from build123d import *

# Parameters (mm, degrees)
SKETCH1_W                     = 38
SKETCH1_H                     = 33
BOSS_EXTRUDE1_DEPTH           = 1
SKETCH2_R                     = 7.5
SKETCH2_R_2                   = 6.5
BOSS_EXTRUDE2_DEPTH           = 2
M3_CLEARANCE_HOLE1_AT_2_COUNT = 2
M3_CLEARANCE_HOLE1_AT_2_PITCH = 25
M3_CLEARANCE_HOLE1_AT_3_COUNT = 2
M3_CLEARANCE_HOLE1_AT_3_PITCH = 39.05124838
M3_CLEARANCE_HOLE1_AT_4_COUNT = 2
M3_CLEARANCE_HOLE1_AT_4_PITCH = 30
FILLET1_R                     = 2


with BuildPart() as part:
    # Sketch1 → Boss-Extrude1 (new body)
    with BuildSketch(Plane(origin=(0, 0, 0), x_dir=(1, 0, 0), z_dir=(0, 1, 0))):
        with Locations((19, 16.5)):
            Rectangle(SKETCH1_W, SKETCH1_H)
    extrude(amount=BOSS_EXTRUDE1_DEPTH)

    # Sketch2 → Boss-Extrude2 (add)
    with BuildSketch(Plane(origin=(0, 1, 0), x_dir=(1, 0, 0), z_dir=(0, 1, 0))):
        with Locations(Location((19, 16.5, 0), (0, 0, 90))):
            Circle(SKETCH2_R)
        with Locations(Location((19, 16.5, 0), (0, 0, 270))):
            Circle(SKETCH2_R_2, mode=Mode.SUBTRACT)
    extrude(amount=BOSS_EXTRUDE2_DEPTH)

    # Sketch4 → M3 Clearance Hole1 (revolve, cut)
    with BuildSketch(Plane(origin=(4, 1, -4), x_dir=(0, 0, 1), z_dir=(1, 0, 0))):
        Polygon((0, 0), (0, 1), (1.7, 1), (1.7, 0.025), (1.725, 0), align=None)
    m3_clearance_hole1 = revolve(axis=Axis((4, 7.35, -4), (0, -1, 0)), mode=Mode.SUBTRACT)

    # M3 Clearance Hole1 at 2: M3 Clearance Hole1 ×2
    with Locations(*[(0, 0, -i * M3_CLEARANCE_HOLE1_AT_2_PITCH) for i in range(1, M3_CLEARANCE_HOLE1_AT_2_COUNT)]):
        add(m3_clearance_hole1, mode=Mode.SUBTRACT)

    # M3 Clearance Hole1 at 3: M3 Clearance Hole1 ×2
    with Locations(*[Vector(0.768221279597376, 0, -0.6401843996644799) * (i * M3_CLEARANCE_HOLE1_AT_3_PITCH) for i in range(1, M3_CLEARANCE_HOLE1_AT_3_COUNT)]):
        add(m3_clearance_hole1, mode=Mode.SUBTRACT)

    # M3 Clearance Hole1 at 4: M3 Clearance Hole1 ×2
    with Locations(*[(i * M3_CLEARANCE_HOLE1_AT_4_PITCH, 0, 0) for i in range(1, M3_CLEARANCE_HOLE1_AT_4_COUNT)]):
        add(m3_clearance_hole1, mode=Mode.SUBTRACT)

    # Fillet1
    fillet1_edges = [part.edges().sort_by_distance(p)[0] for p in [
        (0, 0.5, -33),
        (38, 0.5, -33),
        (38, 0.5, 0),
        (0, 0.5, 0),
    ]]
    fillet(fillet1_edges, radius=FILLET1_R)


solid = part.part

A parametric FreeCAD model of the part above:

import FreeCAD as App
import Part
import Sketcher
from FreeCAD import Vector
Q = App.Units.Quantity


def edges_at(feature, points):
    """Names of the edges that pass closest to the given points."""
    edges = feature.Shape.Edges
    near = lambda p: min(range(len(edges)), key=lambda i: edges[i].distToShape(Part.Vertex(*p))[0])
    return sorted({f"Edge{near(p) + 1}" for p in points})


def add_polygon(sketch, points):
    """Adds a closed chain of lines whose ends are joined by coincident constraints."""
    first, n = sketch.GeometryCount, len(points)
    for a, b in zip(points, points[1:] + points[:1]):
        sketch.addGeometry(Part.LineSegment(App.Vector(*a, 0), App.Vector(*b, 0)), False)
    for i in range(n):
        sketch.addConstraint(Sketcher.Constraint("Coincident", first + i, 2, first + (i + 1) % n, 1))

doc = App.newDocument("Part")
params = doc.addObject("Spreadsheet::Sheet", "Params")
for row, (alias, value) in enumerate([
    ("sketch1_width", "38 mm"),
    ("sketch1_height", "33 mm"),
    ("pad1_length", "1 mm"),
    ("sketch2_diameter", "15 mm"),
    ("sketch2_diameter2", "13 mm"),
    ("pad2_length", "2 mm"),
    ("sketch3_width", "1 mm"),
    ("sketch3_height", "1.7 mm"),
    ("groove_angle", "360 deg"),
    ("linearpattern_pitch", "25 mm"),
    ("linearpattern2_pitch", "39.051248 mm"),
    ("linearpattern3_pitch", "30 mm"),
    ("fillet_radius", "2 mm"),
], start=1):
    params.set(f"A{row}", alias)
    params.set(f"B{row}", "=" + value)
    params.setAlias(f"B{row}", alias)

body = doc.addObject("PartDesign::Body", "Body")

# Sketch on XZ plane
sketch1 = doc.addObject("Sketcher::SketchObject", "Sketch")
body.addObject(sketch1)
sketch1.AttachmentSupport = (doc.XZ_Plane, [""])
sketch1.MapMode = "FlatFace"
add_polygon(sketch1, [(0, -33), (0, 0), (38, 0), (38, -33)])  # lines 0-3
sketch1.addConstraint([
    Sketcher.Constraint("Vertical", 0),
    Sketcher.Constraint("Horizontal", 1),
    Sketcher.Constraint("Vertical", 2),
    Sketcher.Constraint("Horizontal", 3),
    Sketcher.Constraint("Coincident", 0, 2, -1, 1),
    Sketcher.Constraint("DistanceX", 1, 1, 1, 2, 38.0),
    Sketcher.Constraint("DistanceY", 0, 1, 0, 2, 33.0),
])
sketch1.setExpression("Constraints[9]", "Params.sketch1_width")
sketch1.setExpression("Constraints[10]", "Params.sketch1_height")
pad1 = doc.addObject("PartDesign::Pad", "Pad")
body.addObject(pad1)
pad1.Profile = sketch1
pad1.setExpression("Length", "Params.pad1_length")
pad1.Reversed = True

# Sketch on XZ plane
sketch2 = doc.addObject("Sketcher::SketchObject", "Sketch001")
body.addObject(sketch2)
sketch2.AttachmentSupport = (doc.XZ_Plane, [""])
sketch2.MapMode = "FlatFace"
sketch2.AttachmentOffset = App.Placement(Vector(0, 0, -1), App.Rotation())
sketch2.addGeometry([
    Part.Circle(Vector(19, -16, 0), Vector(0, 0, 1), 8),
    Part.Circle(Vector(19, -16, 0), Vector(0, 0, 1), 6),
], False)
sketch2.addConstraint([
    Sketcher.Constraint("Coincident", 1, 3, 0, 3),
    Sketcher.Constraint("Diameter", 0, 15.0),
    Sketcher.Constraint("Diameter", 1, 13.0),
    Sketcher.Constraint("DistanceX", -1, 1, 0, 3, 19.0),
    Sketcher.Constraint("DistanceY", 0, 3, -1, 1, 16.5),
])
sketch2.setExpression("Constraints[1]", "Params.sketch2_diameter")
sketch2.setExpression("Constraints[2]", "Params.sketch2_diameter2")
pad2 = doc.addObject("PartDesign::Pad", "Pad001")
body.addObject(pad2)
pad2.Profile = sketch2
pad2.setExpression("Length", "Params.pad2_length")
pad2.Reversed = True

# Sketch on YZ plane
sketch3 = doc.addObject("Sketcher::SketchObject", "Sketch002")
body.addObject(sketch3)
sketch3.AttachmentSupport = (doc.YZ_Plane, [""])
sketch3.MapMode = "FlatFace"
sketch3.AttachmentOffset = App.Placement(Vector(0, 0, 4), App.Rotation())
add_polygon(sketch3, [(0, -4), (1, -4), (1, -2.275), (0.975, -2.3), (0, -2.3)])  # lines 0-4
sketch3.addGeometry(Part.LineSegment(Vector(1, -4, 0), Vector(0, -4, 0)), True)  # axis
sketch3.addConstraint([
    Sketcher.Constraint("Horizontal", 0),
    Sketcher.Constraint("Vertical", 1),
    Sketcher.Constraint("Horizontal", 3),
    Sketcher.Constraint("Vertical", 4),
    Sketcher.Constraint("Horizontal", 5),
    Sketcher.Constraint("Coincident", 5, 1, 0, 2),
    Sketcher.Constraint("PointOnObject", 3, 2, -2),
    Sketcher.Constraint("PointOnObject", 5, 2, -2),
    Sketcher.Constraint("DistanceX", 0, 1, 0, 2, 1.0),
    Sketcher.Constraint("Angle", 2, Q("-135 deg")),
    Sketcher.Constraint("DistanceY", 4, 2, 4, 1, 1.7),
    Sketcher.Constraint("DistanceY", 0, 2, -1, 1, 4.0),
    Sketcher.Constraint("DistanceX", 3, 2, 3, 1, 0.975),
])
sketch3.setExpression("Constraints[13]", "Params.sketch3_width")
sketch3.setExpression("Constraints[15]", "Params.sketch3_height")
groove = doc.addObject("PartDesign::Groove", "Groove")
body.addObject(groove)
groove.Profile = sketch3
groove.ReferenceAxis = (sketch3, ["Axis0"])
groove.setExpression("Angle", "Params.groove_angle")
doc.recompute()

linearpattern = doc.addObject("PartDesign::LinearPattern", "LinearPattern")
body.addObject(linearpattern)
linearpattern.Originals = [groove]
linearpattern.Direction = (doc.Z_Axis, [""])
linearpattern.Mode = "offset"
linearpattern.setExpression("Offset", "Params.linearpattern_pitch")
linearpattern.Occurrences = 2
linearpattern.Reversed = True
body.Tip = linearpattern
doc.recompute()

datumline = doc.addObject("PartDesign::Line", "DatumLine")
body.addObject(datumline)
datumline.Placement = App.Placement(Vector(0, 0, 0), App.Rotation(Vector(0, 0, 1), Vector(0.76822128, 0, -0.6401844)))
linearpattern2 = doc.addObject("PartDesign::LinearPattern", "LinearPattern001")
body.addObject(linearpattern2)
linearpattern2.Originals = [groove]
linearpattern2.Direction = (datumline, [""])
linearpattern2.Mode = "offset"
linearpattern2.setExpression("Offset", "Params.linearpattern2_pitch")
linearpattern2.Occurrences = 2
body.Tip = linearpattern2
doc.recompute()

linearpattern3 = doc.addObject("PartDesign::LinearPattern", "LinearPattern002")
body.addObject(linearpattern3)
linearpattern3.Originals = [groove]
linearpattern3.Direction = (doc.X_Axis, [""])
linearpattern3.Mode = "offset"
linearpattern3.setExpression("Offset", "Params.linearpattern3_pitch")
linearpattern3.Occurrences = 2
body.Tip = linearpattern3
doc.recompute()

fillet = doc.addObject("PartDesign::Fillet", "Fillet")
body.addObject(fillet)
fillet.Base = (linearpattern3, edges_at(linearpattern3, [
    (0, 0.5, -33),
    (38, 0.5, -33),
    (38, 0.5, 0),
    (0, 0.5, 0),
]))
fillet.setExpression("Radius", "Params.fillet_radius")

doc.recompute()
